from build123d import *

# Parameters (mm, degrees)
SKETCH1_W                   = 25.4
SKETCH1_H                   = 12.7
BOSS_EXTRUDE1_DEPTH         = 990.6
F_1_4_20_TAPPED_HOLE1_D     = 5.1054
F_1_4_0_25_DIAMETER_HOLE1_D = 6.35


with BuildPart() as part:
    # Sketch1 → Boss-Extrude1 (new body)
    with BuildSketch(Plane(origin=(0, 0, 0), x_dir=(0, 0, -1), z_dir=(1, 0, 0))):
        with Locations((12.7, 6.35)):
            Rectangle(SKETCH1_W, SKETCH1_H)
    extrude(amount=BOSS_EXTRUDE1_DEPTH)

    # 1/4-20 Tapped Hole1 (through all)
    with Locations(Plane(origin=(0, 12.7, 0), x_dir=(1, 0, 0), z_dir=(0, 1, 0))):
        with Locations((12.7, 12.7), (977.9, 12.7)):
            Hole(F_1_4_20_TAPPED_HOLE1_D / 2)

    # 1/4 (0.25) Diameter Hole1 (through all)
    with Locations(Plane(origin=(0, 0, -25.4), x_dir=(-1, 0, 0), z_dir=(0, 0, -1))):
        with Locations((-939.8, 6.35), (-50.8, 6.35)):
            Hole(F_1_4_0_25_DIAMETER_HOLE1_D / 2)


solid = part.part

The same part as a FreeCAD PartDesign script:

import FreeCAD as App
import Part
import Sketcher
from FreeCAD import Vector
Q = App.Units.Quantity

doc = App.newDocument("Part")
params = doc.addObject("Spreadsheet::Sheet", "Params")
for row, (alias, value) in enumerate([
    ("sketch1_height", "1 in"),
    ("sketch1_width", "0.5 in"),
    ("pad1_length", "39 in"),
    ("sketch2_diameter", "0.201 in"),
    ("hole_diameter", "0.201 in"),
    ("sketch3_diameter", "0.25 in"),
    ("hole2_diameter", "0.25 in"),
], start=1):
    params.set(f"A{row}", alias)
    params.set(f"B{row}", "=" + value)
    params.setAlias(f"B{row}", alias)

body = doc.addObject("PartDesign::Body", "Body")

sketch1 = body.newObject("Sketcher::SketchObject", "Sketch")
sketch1.AttachmentSupport = (doc.getObject("YZ_Plane"), [""])
sketch1.MapMode = "FlatFace"
sketch1.addGeometry([
    Part.LineSegment(Vector(13, 0, 0), Vector(0, 0, 0)),
    Part.LineSegment(Vector(0, 0, 0), Vector(0, -25, 0)),
    Part.LineSegment(Vector(0, -25, 0), Vector(13, -25, 0)),
    Part.LineSegment(Vector(13, -25, 0), Vector(13, 0, 0)),
], False)
sketch1.addConstraint([
    Sketcher.Constraint("Coincident", 0, 2, 1, 1),
    Sketcher.Constraint("Coincident", 1, 2, 2, 1),
    Sketcher.Constraint("Coincident", 2, 2, 3, 1),
    Sketcher.Constraint("Coincident", 3, 2, 0, 1),
    Sketcher.Constraint("Horizontal", 0),
    Sketcher.Constraint("Vertical", 1),
    Sketcher.Constraint("Horizontal", 2),
    Sketcher.Constraint("Vertical", 3),
    Sketcher.Constraint("Coincident", 0, 2, -1, 1),
    Sketcher.Constraint("DistanceY", 1, 2, 1, 1, Q("1 in")),
    Sketcher.Constraint("DistanceX", 0, 2, 0, 1, Q("0.5 in")),
])
sketch1.setExpression("Constraints[9]", "Params.sketch1_height")
sketch1.setExpression("Constraints[10]", "Params.sketch1_width")
pad1 = body.newObject("PartDesign::Pad", "Pad")
pad1.Profile = sketch1
pad1.setExpression("Length", "Params.pad1_length")

sketch2 = body.newObject("Sketcher::SketchObject", "Sketch001")
sketch2.AttachmentSupport = (doc.getObject("XZ_Plane"), [""])
sketch2.MapMode = "FlatFace"
sketch2.AttachmentOffset = App.Placement(Vector(0, 0, -0.5 * 25.4), App.Rotation())
sketch2.addGeometry([
    Part.Circle(Vector(12.7, -12.7, 0), Vector(0, 0, 1), 2.6),
    Part.Circle(Vector(977.9, -12.7, 0), Vector(0, 0, 1), 2.6),
], False)
sketch2.addConstraint([
    Sketcher.Constraint("Equal", 0, 1),
    Sketcher.Constraint("Horizontal", 0, 3, 1, 3),
    Sketcher.Constraint("Diameter", 0, Q("0.201 in")),
    Sketcher.Constraint("DistanceX", 0, 3, 1, 3, Q("38 in")),
    Sketcher.Constraint("DistanceX", -1, 1, 0, 3, Q("0.5 in")),
    Sketcher.Constraint("DistanceY", 0, 3, -1, 1, Q("0.5 in")),
])
sketch2.setExpression("Constraints[2]", "Params.sketch2_diameter")
doc.recompute()
hole = body.newObject("PartDesign::Hole", "Hole")
hole.Profile = sketch2
hole.ThreadType = "None"
hole.setExpression("Diameter", "Params.hole_diameter")
hole.DepthType = "ThroughAll"
hole.Reversed = True

sketch3 = body.newObject("Sketcher::SketchObject", "Sketch002")
sketch3.AttachmentSupport = (doc.getObject("XY_Plane"), [""])
sketch3.MapMode = "FlatFace"
sketch3.AttachmentOffset = App.Placement(Vector(0, 0, -1 * 25.4), App.Rotation())
sketch3.addGeometry([
    Part.Circle(Vector(939.8, 6.3, 0), Vector(0, 0, 1), 3.2),
    Part.Circle(Vector(50.8, 6.3, 0), Vector(0, 0, 1), 3.2),
], False)
sketch3.addConstraint([
    Sketcher.Constraint("Equal", 0, 1),
    Sketcher.Constraint("Horizontal", 0, 3, 1, 3),
    Sketcher.Constraint("Diameter", 0, Q("0.25 in")),
    Sketcher.Constraint("DistanceX", -1, 1, 0, 3, Q("37 in")),
    Sketcher.Constraint("DistanceX", -1, 1, 1, 3, Q("2 in")),
    Sketcher.Constraint("DistanceY", -1, 1, 0, 3, Q("0.25 in")),
])
sketch3.setExpression("Constraints[2]", "Params.sketch3_diameter")
doc.recompute()
hole2 = body.newObject("PartDesign::Hole", "Hole001")
hole2.Profile = sketch3
hole2.ThreadType = "None"
hole2.setExpression("Diameter", "Params.hole2_diameter")
hole2.DepthType = "ThroughAll"
hole2.Reversed = True

doc.recompute()
